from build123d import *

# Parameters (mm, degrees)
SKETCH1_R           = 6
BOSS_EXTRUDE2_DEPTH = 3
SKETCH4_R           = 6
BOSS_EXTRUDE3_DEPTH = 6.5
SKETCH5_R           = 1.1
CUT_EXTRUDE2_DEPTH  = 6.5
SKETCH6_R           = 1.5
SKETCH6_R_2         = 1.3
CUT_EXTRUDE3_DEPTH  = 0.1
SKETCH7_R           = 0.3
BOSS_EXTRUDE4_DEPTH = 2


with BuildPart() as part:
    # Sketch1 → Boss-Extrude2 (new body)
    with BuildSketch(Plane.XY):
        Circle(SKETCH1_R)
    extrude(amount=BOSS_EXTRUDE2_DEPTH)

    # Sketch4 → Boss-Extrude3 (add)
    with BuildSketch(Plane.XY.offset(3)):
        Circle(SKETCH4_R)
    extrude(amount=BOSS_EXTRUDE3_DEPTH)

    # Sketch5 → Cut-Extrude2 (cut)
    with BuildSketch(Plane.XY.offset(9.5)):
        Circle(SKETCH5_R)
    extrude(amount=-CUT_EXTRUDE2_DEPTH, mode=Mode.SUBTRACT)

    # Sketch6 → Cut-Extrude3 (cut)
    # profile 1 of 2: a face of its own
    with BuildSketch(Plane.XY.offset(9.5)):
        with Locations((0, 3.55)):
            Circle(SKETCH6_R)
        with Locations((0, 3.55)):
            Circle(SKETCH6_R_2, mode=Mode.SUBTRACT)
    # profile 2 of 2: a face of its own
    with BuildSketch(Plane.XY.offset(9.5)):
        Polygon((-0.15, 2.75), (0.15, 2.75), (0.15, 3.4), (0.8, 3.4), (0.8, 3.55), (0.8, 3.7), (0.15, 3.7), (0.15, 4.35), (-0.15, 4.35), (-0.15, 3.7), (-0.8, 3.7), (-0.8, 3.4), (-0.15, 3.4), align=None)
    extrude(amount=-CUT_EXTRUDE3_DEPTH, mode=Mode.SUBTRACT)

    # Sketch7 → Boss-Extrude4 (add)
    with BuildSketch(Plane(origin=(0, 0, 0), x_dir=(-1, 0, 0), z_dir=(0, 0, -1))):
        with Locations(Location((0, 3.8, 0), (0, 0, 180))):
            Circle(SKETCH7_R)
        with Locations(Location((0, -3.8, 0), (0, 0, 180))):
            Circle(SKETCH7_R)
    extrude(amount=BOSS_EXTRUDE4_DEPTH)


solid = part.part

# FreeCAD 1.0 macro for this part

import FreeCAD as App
import Part
import Sketcher

V = App.Vector
Q = App.Units.Quantity


def add_polygon(sketch, points):
    """Adds a closed chain of lines whose ends are joined by coincident constraints."""
    first, n = sketch.GeometryCount, len(points)
    for a, b in zip(points, points[1:] + points[:1]):
        sketch.addGeometry(Part.LineSegment(App.Vector(*a, 0), App.Vector(*b, 0)), False)
    for i in range(n):
        sketch.addConstraint(Sketcher.Constraint("Coincident", first + i, 2, first + (i + 1) % n, 1))

doc = App.newDocument("Part")
body = doc.addObject("PartDesign::Body", "Body")

# Sketch on XY plane
sketch1 = body.newObject("Sketcher::SketchObject", "Sketch")
sketch1.AttachmentSupport = (doc.getObject("XY_Plane"), [""])
sketch1.MapMode = "FlatFace"
sketch1.addGeometry(Part.Circle(V(0, 0, 0), V(0, 0, 1), 6), False)
sketch1.addConstraint(Sketcher.Constraint("Coincident", 0, 3, -1, 1))
sketch1.addConstraint(Sketcher.Constraint("Diameter", 0, Q("12 mm")))
pad1 = body.newObject("PartDesign::Pad", "Pad")
pad1.Profile = sketch1
pad1.Length = 3

# Sketch on XY plane
sketch2 = body.newObject("Sketcher::SketchObject", "Sketch001")
sketch2.AttachmentSupport = (doc.getObject("XY_Plane"), [""])
sketch2.MapMode = "FlatFace"
sketch2.AttachmentOffset = App.Placement(V(0, 0, 3), App.Rotation())
sketch2.addGeometry(Part.Circle(V(0, 0, 0), V(0, 0, 1), 6), False)
sketch2.addConstraint(Sketcher.Constraint("Coincident", 0, 3, -1, 1))
sketch2.addConstraint(Sketcher.Constraint("Diameter", 0, Q("12 mm")))
pad2 = body.newObject("PartDesign::Pad", "Pad001")
pad2.Profile = sketch2
pad2.Length = 6.5

# Sketch on XY plane
sketch3 = body.newObject("Sketcher::SketchObject", "Sketch002")
sketch3.AttachmentSupport = (doc.getObject("XY_Plane"), [""])
sketch3.MapMode = "FlatFace"
sketch3.AttachmentOffset = App.Placement(V(0, 0, 9.5), App.Rotation())
sketch3.addGeometry(Part.Circle(V(0, 0, 0), V(0, 0, 1), 1.1), False)
sketch3.addConstraint(Sketcher.Constraint("Coincident", 0, 3, -1, 1))
sketch3.addConstraint(Sketcher.Constraint("Diameter", 0, Q("2.2 mm")))
pocket1 = body.newObject("PartDesign::Pocket", "Pocket")
pocket1.Profile = sketch3
pocket1.Length = 6.5

# Sketch on XY plane
sketch4 = body.newObject("Sketcher::SketchObject", "Sketch003")
sketch4.AttachmentSupport = (doc.getObject("XY_Plane"), [""])
sketch4.MapMode = "FlatFace"
sketch4.AttachmentOffset = App.Placement(V(0, 0, 9.5), App.Rotation())
sketch4.addGeometry(Part.Circle(V(0, 3.55, 0), V(0, 0, 1), 1.5), False)  # 0
sketch4.addGeometry(Part.Circle(V(0, 3.55, 0), V(0, 0, 1), 1.3), False)  # 1
add_polygon(sketch4, [(-0.15, 2.75), (0.15, 2.75), (0.15, 3.4), (0.8, 3.4), (0.8, 3.7), (0.15, 3.7), (0.15, 4.35), (-0.15, 4.35), (-0.15, 3.7), (-0.8, 3.7), (-0.8, 3.4), (-0.15, 3.4)])  # lines 2-13
sketch4.addConstraint(Sketcher.Constraint("Horizontal", 2))
sketch4.addConstraint(Sketcher.Constraint("Vertical", 3))
sketch4.addConstraint(Sketcher.Constraint("Horizontal", 4))
sketch4.addConstraint(Sketcher.Constraint("Vertical", 5))
sketch4.addConstraint(Sketcher.Constraint("Horizontal", 6))
sketch4.addConstraint(Sketcher.Constraint("Vertical", 7))
sketch4.addConstraint(Sketcher.Constraint("Horizontal", 8))
sketch4.addConstraint(Sketcher.Constraint("Vertical", 9))
sketch4.addConstraint(Sketcher.Constraint("Horizontal", 10))
sketch4.addConstraint(Sketcher.Constraint("Vertical", 11))
sketch4.addConstraint(Sketcher.Constraint("Horizontal", 12))
sketch4.addConstraint(Sketcher.Constraint("Vertical", 13))
sketch4.addConstraint(Sketcher.Constraint("Coincident", 1, 3, 0, 3))
sketch4.addConstraint(Sketcher.Constraint("Symmetric", 6, 2, 9, 2, -2))
sketch4.addConstraint(Sketcher.Constraint("Symmetric", 4, 2, 11, 2, -2))
sketch4.addConstraint(Sketcher.Constraint("PointOnObject", 0, 3, -2))
sketch4.addConstraint(Sketcher.Constraint("Vertical", 3, 2, 6, 2))
sketch4.addConstraint(Sketcher.Constraint("Vertical", 9, 2, 12, 2))
sketch4.addConstraint(Sketcher.Constraint("Equal", 12, 3))
sketch4.addConstraint(Sketcher.Constraint("Equal", 8, 5))
sketch4.addConstraint(Sketcher.Constraint("Equal", 3, 7))
sketch4.addConstraint(Sketcher.Constraint("Diameter", 0, Q("3 mm")))
sketch4.addConstraint(Sketcher.Constraint("Diameter", 1, Q("2.6 mm")))
sketch4.addConstraint(Sketcher.Constraint("DistanceX", 2, 1, 2, 2, Q("0.3 mm")))
sketch4.addConstraint(Sketcher.Constraint("DistanceX", 4, 1, 4, 2, Q("0.65 mm")))
sketch4.addConstraint(Sketcher.Constraint("DistanceY", -1, 1, 3, 2, Q("3.4 mm")))
sketch4.addConstraint(Sketcher.Constraint("DistanceY", 2, 2, 0, 3, Q("0.8 mm")))
pocket2 = body.newObject("PartDesign::Pocket", "Pocket001")
pocket2.Profile = sketch4
pocket2.Length = 0.1

# Sketch on XY plane
sketch5 = body.newObject("Sketcher::SketchObject", "Sketch004")
sketch5.AttachmentSupport = (doc.getObject("XY_Plane"), [""])
sketch5.MapMode = "FlatFace"
sketch5.addGeometry(Part.Circle(V(0, 3.8, 0), V(0, 0, 1), 0.3), False)
sketch5.addGeometry(Part.Circle(V(0, -3.8, 0), V(0, 0, 1), 0.3), False)
sketch5.addConstraint(Sketcher.Constraint("Equal", 0, 1))
sketch5.addConstraint(Sketcher.Constraint("Symmetric", 0, 3, 1, 3, -1, 1))
sketch5.addConstraint(Sketcher.Constraint("PointOnObject", 0, 3, -2))
sketch5.addConstraint(Sketcher.Constraint("Diameter", 0, Q("0.6 mm")))
sketch5.addConstraint(Sketcher.Constraint("DistanceY", -1, 1, 0, 3, Q("3.8 mm")))
pad3 = body.newObject("PartDesign::Pad", "Pad002")
pad3.Profile = sketch5
pad3.Length = 2
pad3.Reversed = True

doc.recompute()
